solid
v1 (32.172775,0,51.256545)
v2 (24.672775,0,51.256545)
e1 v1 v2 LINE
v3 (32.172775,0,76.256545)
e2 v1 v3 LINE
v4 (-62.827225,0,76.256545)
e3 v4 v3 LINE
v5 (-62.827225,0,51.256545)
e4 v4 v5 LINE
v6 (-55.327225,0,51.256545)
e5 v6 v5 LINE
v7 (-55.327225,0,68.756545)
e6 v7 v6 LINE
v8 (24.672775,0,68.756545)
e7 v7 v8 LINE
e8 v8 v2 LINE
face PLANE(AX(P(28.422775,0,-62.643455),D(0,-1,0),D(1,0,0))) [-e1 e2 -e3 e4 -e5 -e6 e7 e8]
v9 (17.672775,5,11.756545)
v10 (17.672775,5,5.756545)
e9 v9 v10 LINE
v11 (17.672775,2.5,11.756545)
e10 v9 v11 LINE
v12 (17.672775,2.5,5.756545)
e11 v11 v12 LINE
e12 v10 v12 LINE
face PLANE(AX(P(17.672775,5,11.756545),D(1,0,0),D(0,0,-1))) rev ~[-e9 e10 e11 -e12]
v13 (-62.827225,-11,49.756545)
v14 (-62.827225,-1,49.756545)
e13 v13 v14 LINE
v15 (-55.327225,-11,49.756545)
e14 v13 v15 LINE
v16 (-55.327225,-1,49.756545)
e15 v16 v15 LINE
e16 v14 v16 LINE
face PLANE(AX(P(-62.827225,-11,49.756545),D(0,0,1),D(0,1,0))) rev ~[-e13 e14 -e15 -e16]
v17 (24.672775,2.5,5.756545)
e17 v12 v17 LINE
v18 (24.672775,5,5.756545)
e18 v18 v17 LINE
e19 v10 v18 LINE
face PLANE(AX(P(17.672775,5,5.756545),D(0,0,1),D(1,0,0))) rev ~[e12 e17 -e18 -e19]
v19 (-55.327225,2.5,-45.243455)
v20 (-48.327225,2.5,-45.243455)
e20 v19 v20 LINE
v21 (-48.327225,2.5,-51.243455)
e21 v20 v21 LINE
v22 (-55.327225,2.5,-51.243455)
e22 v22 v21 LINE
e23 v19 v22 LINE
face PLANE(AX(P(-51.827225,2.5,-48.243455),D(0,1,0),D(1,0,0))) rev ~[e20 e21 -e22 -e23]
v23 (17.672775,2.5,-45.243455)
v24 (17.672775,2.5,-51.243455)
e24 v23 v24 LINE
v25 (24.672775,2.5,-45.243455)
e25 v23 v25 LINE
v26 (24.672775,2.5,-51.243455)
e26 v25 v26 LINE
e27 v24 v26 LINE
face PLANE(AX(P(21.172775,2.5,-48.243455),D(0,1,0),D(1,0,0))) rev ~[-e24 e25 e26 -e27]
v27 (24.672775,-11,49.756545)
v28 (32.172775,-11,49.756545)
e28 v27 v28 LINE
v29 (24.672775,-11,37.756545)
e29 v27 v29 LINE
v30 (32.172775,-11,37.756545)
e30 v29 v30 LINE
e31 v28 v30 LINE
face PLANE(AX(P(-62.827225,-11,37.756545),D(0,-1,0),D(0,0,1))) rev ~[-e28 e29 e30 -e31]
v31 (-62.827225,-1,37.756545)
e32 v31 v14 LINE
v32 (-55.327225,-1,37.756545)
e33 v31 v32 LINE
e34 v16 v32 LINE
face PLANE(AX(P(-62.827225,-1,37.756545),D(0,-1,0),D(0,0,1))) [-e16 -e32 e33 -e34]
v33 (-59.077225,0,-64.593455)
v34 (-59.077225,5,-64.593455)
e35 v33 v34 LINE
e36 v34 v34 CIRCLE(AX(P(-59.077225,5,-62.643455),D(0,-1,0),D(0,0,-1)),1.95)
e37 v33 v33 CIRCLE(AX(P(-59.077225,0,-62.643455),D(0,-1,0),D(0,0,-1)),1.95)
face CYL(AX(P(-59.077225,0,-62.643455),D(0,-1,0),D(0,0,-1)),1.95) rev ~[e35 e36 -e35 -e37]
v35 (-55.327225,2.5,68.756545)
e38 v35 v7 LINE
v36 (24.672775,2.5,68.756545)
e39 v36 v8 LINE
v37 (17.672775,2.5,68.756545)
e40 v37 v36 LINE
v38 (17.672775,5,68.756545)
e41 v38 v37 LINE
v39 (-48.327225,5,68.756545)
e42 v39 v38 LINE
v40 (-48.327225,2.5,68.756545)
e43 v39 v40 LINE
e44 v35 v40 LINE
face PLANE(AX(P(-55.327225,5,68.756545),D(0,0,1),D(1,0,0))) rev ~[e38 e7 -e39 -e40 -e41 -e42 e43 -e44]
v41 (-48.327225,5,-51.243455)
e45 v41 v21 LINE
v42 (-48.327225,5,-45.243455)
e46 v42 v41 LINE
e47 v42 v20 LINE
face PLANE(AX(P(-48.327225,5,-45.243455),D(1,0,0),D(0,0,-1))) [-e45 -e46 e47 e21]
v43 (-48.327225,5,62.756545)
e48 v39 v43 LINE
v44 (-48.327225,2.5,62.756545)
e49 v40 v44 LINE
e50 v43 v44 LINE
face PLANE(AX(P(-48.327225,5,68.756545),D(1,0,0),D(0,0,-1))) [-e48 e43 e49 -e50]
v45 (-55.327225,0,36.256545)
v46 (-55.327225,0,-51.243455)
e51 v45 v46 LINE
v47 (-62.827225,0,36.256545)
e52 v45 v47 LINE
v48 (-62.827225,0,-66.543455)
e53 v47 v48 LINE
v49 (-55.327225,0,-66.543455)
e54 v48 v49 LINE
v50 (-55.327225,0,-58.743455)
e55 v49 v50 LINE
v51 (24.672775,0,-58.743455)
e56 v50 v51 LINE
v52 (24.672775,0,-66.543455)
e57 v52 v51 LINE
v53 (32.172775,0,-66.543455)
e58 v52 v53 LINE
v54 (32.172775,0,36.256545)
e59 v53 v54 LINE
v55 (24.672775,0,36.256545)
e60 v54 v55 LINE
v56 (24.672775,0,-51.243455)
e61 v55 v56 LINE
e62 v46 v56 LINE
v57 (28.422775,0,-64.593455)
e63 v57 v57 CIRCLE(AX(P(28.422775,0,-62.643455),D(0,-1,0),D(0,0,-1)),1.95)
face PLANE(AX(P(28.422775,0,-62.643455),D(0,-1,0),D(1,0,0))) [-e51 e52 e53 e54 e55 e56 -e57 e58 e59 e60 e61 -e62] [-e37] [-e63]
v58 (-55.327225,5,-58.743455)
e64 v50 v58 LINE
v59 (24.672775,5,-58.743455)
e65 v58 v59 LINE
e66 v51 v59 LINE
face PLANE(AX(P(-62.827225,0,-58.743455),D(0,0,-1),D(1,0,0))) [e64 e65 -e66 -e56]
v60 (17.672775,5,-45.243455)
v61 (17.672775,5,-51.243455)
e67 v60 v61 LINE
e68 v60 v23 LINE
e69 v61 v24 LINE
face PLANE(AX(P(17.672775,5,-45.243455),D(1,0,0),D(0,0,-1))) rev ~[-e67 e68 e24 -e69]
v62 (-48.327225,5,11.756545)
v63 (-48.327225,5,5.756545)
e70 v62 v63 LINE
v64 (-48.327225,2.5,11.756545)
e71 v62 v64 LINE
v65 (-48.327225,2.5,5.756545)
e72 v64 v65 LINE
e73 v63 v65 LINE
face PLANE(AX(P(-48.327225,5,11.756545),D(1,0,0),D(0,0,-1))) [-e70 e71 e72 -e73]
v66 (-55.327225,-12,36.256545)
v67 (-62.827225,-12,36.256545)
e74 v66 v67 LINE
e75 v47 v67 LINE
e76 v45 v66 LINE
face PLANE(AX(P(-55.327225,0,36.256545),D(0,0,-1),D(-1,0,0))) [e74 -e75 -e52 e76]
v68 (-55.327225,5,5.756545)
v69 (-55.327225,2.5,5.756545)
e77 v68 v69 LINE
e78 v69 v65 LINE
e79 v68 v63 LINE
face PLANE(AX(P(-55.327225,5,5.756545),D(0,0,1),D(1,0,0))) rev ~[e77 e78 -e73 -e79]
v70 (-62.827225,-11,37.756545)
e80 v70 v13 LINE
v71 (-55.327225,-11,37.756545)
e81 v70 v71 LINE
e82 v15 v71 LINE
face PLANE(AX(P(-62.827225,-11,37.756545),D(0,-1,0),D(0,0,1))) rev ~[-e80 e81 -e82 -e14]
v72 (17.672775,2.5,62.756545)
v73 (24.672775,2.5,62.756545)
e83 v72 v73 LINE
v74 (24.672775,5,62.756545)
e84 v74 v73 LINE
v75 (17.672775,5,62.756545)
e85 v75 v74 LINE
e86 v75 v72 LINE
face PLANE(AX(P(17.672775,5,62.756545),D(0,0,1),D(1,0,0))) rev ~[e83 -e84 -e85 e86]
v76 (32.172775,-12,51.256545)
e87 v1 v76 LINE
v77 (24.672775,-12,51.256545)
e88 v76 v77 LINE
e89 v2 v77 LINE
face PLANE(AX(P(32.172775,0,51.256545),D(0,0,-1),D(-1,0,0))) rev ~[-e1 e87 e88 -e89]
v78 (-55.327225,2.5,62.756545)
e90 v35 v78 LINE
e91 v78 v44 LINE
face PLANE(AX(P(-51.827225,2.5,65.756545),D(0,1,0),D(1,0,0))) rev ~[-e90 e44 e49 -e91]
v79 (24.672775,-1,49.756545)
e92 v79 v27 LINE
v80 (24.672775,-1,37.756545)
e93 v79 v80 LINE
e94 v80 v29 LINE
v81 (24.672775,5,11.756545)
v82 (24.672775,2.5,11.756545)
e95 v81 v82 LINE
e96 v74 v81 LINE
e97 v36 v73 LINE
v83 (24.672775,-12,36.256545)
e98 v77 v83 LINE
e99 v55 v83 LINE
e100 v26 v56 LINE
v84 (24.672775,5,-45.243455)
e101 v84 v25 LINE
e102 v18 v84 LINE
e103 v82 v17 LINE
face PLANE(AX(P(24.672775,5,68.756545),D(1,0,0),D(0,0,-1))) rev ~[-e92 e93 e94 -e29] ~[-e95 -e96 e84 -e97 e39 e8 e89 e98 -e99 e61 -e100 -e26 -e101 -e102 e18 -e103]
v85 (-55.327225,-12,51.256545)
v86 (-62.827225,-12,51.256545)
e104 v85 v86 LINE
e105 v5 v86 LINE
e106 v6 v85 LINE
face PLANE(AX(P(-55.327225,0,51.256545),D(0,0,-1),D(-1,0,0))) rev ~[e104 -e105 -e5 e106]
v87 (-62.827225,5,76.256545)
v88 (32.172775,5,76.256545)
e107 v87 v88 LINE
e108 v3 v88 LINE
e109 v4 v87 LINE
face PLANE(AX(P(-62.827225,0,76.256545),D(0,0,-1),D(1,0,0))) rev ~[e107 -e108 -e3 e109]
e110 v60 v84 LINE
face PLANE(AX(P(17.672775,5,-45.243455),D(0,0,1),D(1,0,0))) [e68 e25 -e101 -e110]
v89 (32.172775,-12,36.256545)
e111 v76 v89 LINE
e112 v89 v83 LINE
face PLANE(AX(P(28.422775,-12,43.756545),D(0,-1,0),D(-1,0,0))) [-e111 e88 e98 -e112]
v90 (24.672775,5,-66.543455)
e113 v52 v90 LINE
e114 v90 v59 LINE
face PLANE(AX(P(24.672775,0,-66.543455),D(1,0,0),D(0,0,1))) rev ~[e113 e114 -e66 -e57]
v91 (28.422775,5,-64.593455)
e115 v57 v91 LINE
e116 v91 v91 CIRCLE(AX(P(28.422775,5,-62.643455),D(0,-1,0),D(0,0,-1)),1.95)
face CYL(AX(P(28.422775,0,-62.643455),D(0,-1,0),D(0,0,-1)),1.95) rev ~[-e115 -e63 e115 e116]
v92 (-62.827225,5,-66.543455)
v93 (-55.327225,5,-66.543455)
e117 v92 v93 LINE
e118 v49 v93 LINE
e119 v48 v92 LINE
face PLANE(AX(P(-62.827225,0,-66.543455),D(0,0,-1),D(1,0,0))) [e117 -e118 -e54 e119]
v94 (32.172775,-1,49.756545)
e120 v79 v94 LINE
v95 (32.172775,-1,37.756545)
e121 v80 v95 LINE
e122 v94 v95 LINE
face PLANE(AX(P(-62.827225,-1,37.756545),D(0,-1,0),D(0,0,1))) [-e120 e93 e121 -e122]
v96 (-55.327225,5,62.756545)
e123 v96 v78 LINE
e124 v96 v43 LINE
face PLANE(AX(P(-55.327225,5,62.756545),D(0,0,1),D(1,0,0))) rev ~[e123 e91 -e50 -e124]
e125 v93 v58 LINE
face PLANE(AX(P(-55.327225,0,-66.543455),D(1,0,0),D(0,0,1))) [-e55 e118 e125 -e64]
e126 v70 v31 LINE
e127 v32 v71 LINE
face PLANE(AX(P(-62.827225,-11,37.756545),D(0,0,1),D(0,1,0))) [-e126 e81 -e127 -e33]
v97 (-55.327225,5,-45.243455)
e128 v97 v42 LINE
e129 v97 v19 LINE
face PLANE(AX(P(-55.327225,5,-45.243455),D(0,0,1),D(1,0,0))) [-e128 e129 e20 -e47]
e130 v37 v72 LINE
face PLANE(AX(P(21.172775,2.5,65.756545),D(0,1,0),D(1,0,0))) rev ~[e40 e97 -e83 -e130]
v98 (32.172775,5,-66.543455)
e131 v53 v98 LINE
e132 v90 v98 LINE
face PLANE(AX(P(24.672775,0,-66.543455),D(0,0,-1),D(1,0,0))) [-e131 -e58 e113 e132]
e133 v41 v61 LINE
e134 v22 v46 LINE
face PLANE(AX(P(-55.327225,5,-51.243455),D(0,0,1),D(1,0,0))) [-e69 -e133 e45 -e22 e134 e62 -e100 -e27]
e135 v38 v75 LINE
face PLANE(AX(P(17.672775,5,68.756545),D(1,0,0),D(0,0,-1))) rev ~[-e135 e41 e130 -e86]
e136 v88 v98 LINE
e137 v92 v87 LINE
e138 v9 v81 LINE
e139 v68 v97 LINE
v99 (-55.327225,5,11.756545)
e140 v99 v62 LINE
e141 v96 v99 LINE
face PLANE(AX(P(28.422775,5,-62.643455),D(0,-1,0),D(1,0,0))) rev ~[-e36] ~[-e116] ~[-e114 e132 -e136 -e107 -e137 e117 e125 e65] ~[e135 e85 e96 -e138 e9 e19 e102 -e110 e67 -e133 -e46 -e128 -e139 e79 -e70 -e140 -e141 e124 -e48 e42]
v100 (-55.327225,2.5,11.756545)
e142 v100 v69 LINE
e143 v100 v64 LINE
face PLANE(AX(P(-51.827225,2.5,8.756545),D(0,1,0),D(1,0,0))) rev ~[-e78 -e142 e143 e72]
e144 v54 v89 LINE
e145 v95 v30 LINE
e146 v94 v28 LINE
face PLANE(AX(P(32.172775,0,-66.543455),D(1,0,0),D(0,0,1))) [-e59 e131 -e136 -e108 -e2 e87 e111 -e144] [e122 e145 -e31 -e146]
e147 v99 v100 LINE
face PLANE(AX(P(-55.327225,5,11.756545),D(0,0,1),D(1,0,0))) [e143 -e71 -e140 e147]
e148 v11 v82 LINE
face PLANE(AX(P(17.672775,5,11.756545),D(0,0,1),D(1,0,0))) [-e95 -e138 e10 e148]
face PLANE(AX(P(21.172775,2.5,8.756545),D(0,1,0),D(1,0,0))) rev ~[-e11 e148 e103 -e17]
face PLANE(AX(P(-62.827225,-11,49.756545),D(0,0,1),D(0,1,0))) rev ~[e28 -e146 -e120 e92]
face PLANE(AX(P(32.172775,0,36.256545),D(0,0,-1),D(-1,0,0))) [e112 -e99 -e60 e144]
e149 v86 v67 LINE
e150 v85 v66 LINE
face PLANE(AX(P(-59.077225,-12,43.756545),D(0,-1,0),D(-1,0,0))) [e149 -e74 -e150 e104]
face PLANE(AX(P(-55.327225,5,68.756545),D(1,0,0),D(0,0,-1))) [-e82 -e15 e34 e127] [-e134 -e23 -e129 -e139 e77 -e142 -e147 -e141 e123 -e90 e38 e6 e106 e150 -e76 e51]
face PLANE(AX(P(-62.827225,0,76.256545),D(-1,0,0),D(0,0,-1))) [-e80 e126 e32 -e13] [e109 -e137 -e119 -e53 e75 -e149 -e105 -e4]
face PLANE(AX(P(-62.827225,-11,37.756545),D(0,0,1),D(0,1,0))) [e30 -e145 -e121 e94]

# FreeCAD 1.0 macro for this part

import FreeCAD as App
import Part
import Sketcher

V = App.Vector
Q = App.Units.Quantity


def add_polygon(sketch, points):
    """Adds a closed chain of lines whose ends are joined by coincident constraints."""
    first, n = sketch.GeometryCount, len(points)
    for a, b in zip(points, points[1:] + points[:1]):
        sketch.addGeometry(Part.LineSegment(App.Vector(*a, 0), App.Vector(*b, 0)), False)
    for i in range(n):
        sketch.addConstraint(Sketcher.Constraint("Coincident", first + i, 2, first + (i + 1) % n, 1))

doc = App.newDocument("Part")
params = doc.addObject("Spreadsheet::Sheet", "Params")
for row, (alias, value) in enumerate([
    ("sketch1_width", "95 mm"),
    ("sketch1_height", "135 mm"),
    ("pad1_length", "5 mm"),
    ("sketch2_width", "80 mm"),
    ("sketch2_height", "120 mm"),
    ("sketch3_width", "7 mm"),
    ("sketch3_height", "6 mm"),
    ("pad2_length", "2.5 mm"),
    ("sketch4_width", "7.5 mm"),
    ("sketch4_height", "7.8 mm"),
    ("pad3_length", "5 mm"),
    ("sketch5_diameter", "3.9 mm"),
    ("pocket2_length", "10 mm"),
    ("sketch6_height", "15 mm"),
    ("sketch6_width", "7.5 mm"),
    ("pad4_length", "12 mm"),
    ("sketch7_width", "10 mm"),
    ("sketch7_height", "12 mm"),
    ("pocket3_length", "1002 mm"),
], start=1):
    params.set(f"A{row}", alias)
    params.set(f"B{row}", "=" + value)
    params.setAlias(f"B{row}", alias)

body = doc.addObject("PartDesign::Body", "Body")

# Sketch on XZ plane
sketch1 = doc.addObject("Sketcher::SketchObject", "Sketch")
body.addObject(sketch1)
sketch1.AttachmentSupport = (doc.XZ_Plane, [""])
sketch1.MapMode = "FlatFace"
add_polygon(sketch1, [(-63, -59), (-63, 76), (32, 76), (32, -59)])  # lines 0-3
sketch1.addConstraint([
    Sketcher.Constraint("Vertical", 0),
    Sketcher.Constraint("Horizontal", 1),
    Sketcher.Constraint("Vertical", 2),
    Sketcher.Constraint("Horizontal", 3),
    Sketcher.Constraint("DistanceX", 1, 1, 1, 2, Q("95 mm")),
    Sketcher.Constraint("DistanceY", 0, 1, 0, 2, Q("135 mm")),
    Sketcher.Constraint("DistanceX", 0, 2, -1, 1, Q("62.827225 mm")),
    Sketcher.Constraint("DistanceY", -1, 1, 0, 2, Q("76.256545 mm")),
])
sketch1.setExpression("Constraints[8]", "Params.sketch1_width")
sketch1.setExpression("Constraints[9]", "Params.sketch1_height")
pad1 = doc.addObject("PartDesign::Pad", "Pad")
body.addObject(pad1)
pad1.Profile = sketch1
pad1.setExpression("Length", "Params.pad1_length")
pad1.Reversed = True

# Sketch on XZ plane
sketch2 = doc.addObject("Sketcher::SketchObject", "Sketch001")
body.addObject(sketch2)
sketch2.AttachmentSupport = (doc.XZ_Plane, [""])
sketch2.MapMode = "FlatFace"
sketch2.AttachmentOffset = App.Placement(V(0, 0, -5), App.Rotation())
add_polygon(sketch2, [(-55, -51), (-55, 69), (25, 69), (25, -51)])  # lines 0-3
sketch2.addConstraint([
    Sketcher.Constraint("Vertical", 0),
    Sketcher.Constraint("Horizontal", 1),
    Sketcher.Constraint("Vertical", 2),
    Sketcher.Constraint("Horizontal", 3),
    Sketcher.Constraint("DistanceX", 1, 1, 1, 2, Q("80 mm")),
    Sketcher.Constraint("DistanceY", 0, 1, 0, 2, Q("120 mm")),
    Sketcher.Constraint("DistanceX", 0, 2, -1, 1, Q("55.327225 mm")),
    Sketcher.Constraint("DistanceY", -1, 1, 0, 2, Q("68.756545 mm")),
])
sketch2.setExpression("Constraints[8]", "Params.sketch2_width")
sketch2.setExpression("Constraints[9]", "Params.sketch2_height")
pocket1 = doc.addObject("PartDesign::Pocket", "Pocket")
body.addObject(pocket1)
pocket1.Profile = sketch2
pocket1.Type = "ThroughAll"
pocket1.Reversed = True

# Sketch on XZ plane
sketch3 = doc.addObject("Sketcher::SketchObject", "Sketch002")
body.addObject(sketch3)
sketch3.AttachmentSupport = (doc.XZ_Plane, [""])
sketch3.MapMode = "FlatFace"
sketch3.AttachmentOffset = App.Placement(V(0, 0, -5), App.Rotation())
add_polygon(sketch3, [(-55, -51), (-55, -45), (-48, -45), (-48, -51)])  # lines 0-3
add_polygon(sketch3, [(18, 63), (18, 69), (25, 69), (25, 63)])  # lines 4-7
add_polygon(sketch3, [(18, -51), (18, -45), (25, -45), (25, -51)])  # lines 8-11
add_polygon(sketch3, [(-55, 63), (-55, 69), (-48, 69), (-48, 63)])  # lines 12-15
add_polygon(sketch3, [(-55, 6), (-55, 12), (-48, 12), (-48, 6)])  # lines 16-19
add_polygon(sketch3, [(18, 6), (18, 12), (25, 12), (25, 6)])  # lines 20-23
sketch3.addConstraint([
    Sketcher.Constraint("Vertical", 0),
    Sketcher.Constraint("Horizontal", 1),
    Sketcher.Constraint("Vertical", 2),
    Sketcher.Constraint("Horizontal", 3),
    Sketcher.Constraint("Vertical", 4),
    Sketcher.Constraint("Horizontal", 5),
    Sketcher.Constraint("Vertical", 6),
    Sketcher.Constraint("Horizontal", 7),
    Sketcher.Constraint("Vertical", 8),
    Sketcher.Constraint("Horizontal", 9),
    Sketcher.Constraint("Vertical", 10),
    Sketcher.Constraint("Horizontal", 11),
    Sketcher.Constraint("Vertical", 12),
    Sketcher.Constraint("Horizontal", 13),
    Sketcher.Constraint("Vertical", 14),
    Sketcher.Constraint("Horizontal", 15),
    Sketcher.Constraint("Vertical", 16),
    Sketcher.Constraint("Horizontal", 17),
    Sketcher.Constraint("Vertical", 18),
    Sketcher.Constraint("Horizontal", 19),
    Sketcher.Constraint("Vertical", 20),
    Sketcher.Constraint("Horizontal", 21),
    Sketcher.Constraint("Vertical", 22),
    Sketcher.Constraint("Horizontal", 23),
    Sketcher.Constraint("Horizontal", 1, 2, 8, 2),
    Sketcher.Constraint("Horizontal", 3, 2, 10, 2),
    Sketcher.Constraint("Horizontal", 5, 2, 12, 2),
    Sketcher.Constraint("Horizontal", 7, 2, 14, 2),
    Sketcher.Constraint("Horizontal", 17, 2, 20, 2),
    Sketcher.Constraint("Horizontal", 19, 2, 22, 2),
    Sketcher.Constraint("Vertical", 7, 2, 8, 2),
    Sketcher.Constraint("Vertical", 6, 2, 9, 2),
    Sketcher.Constraint("Vertical", 3, 2, 12, 2),
    Sketcher.Constraint("Vertical", 2, 2, 13, 2),
    Sketcher.Constraint("Vertical", 15, 2, 16, 2),
    Sketcher.Constraint("Vertical", 14, 2, 17, 2),
    Sketcher.Constraint("Vertical", 11, 2, 20, 2),
    Sketcher.Constraint("Vertical", 10, 2, 21, 2),
    Sketcher.Constraint("Equal", 3, 5),
    Sketcher.Constraint("Equal", 2, 4),
    Sketcher.Constraint("Equal", 14, 16),
    Sketcher.Constraint("DistanceX", 1, 1, 1, 2, Q("7 mm")),
    Sketcher.Constraint("DistanceY", 0, 1, 0, 2, Q("6 mm")),
    Sketcher.Constraint("DistanceX", 1, 2, 4, 2, Q("66 mm")),
    Sketcher.Constraint("DistanceY", 1, 2, 4, 2, Q("114 mm")),
    Sketcher.Constraint("DistanceY", 16, 2, 15, 2, Q("51 mm")),
    Sketcher.Constraint("DistanceX", 0, 2, -1, 1, Q("55.327225 mm")),
    Sketcher.Constraint("DistanceY", 0, 2, -1, 1, Q("45.243455 mm")),
])
sketch3.setExpression("Constraints[65]", "Params.sketch3_width")
sketch3.setExpression("Constraints[66]", "Params.sketch3_height")
pad2 = doc.addObject("PartDesign::Pad", "Pad001")
body.addObject(pad2)
pad2.Profile = sketch3
pad2.setExpression("Length", "Params.pad2_length")

# Sketch on XZ plane
sketch4 = doc.addObject("Sketcher::SketchObject", "Sketch003")
body.addObject(sketch4)
sketch4.AttachmentSupport = (doc.XZ_Plane, [""])
sketch4.MapMode = "FlatFace"
add_polygon(sketch4, [(25, -59), (25, -67), (32, -67), (32, -59)])  # lines 0-3
add_polygon(sketch4, [(-63, -59), (-63, -67), (-55, -67), (-55, -59)])  # lines 4-7
sketch4.addConstraint([
    Sketcher.Constraint("Vertical", 0),
    Sketcher.Constraint("Horizontal", 1),
    Sketcher.Constraint("Vertical", 2),
    Sketcher.Constraint("Horizontal", 3),
    Sketcher.Constraint("Vertical", 4),
    Sketcher.Constraint("Horizontal", 5),
    Sketcher.Constraint("Vertical", 6),
    Sketcher.Constraint("Horizontal", 7),
    Sketcher.Constraint("Horizontal", 1, 2, 4, 2),
    Sketcher.Constraint("Horizontal", 3, 2, 6, 2),
    Sketcher.Constraint("Equal", 3, 5),
    Sketcher.Constraint("DistanceX", 1, 1, 1, 2, Q("7.5 mm")),
    Sketcher.Constraint("DistanceY", 0, 2, 0, 1, Q("7.8 mm")),
    Sketcher.Constraint("DistanceX", 4, 2, 1, 2, Q("95 mm")),
    Sketcher.Constraint("DistanceX", -1, 1, 0, 2, Q("24.672775 mm")),
    Sketcher.Constraint("DistanceY", 0, 2, -1, 1, Q("66.543455 mm")),
])
sketch4.setExpression("Constraints[19]", "Params.sketch4_width")
sketch4.setExpression("Constraints[20]", "Params.sketch4_height")
pad3 = doc.addObject("PartDesign::Pad", "Pad002")
body.addObject(pad3)
pad3.Profile = sketch4
pad3.setExpression("Length", "Params.pad3_length")
pad3.Reversed = True

# Sketch on XZ plane
sketch5 = doc.addObject("Sketcher::SketchObject", "Sketch004")
body.addObject(sketch5)
sketch5.AttachmentSupport = (doc.XZ_Plane, [""])
sketch5.MapMode = "FlatFace"
sketch5.addGeometry([
    Part.Circle(V(-59.1, -62.6, 0), V(0, 0, 1), 1.9),
    Part.Circle(V(28.4, -62.6, 0), V(0, 0, 1), 1.9),
], False)
sketch5.addConstraint([
    Sketcher.Constraint("Equal", 0, 1),
    Sketcher.Constraint("Horizontal", 0, 3, 1, 3),
    Sketcher.Constraint("Diameter", 0, Q("3.9 mm")),
    Sketcher.Constraint("DistanceX", 0, 3, 1, 3, Q("87.5 mm")),
    Sketcher.Constraint("DistanceX", 0, 3, -1, 1, Q("59.077225 mm")),
    Sketcher.Constraint("DistanceY", 0, 3, -1, 1, Q("62.643455 mm")),
])
sketch5.setExpression("Constraints[2]", "Params.sketch5_diameter")
pocket2 = doc.addObject("PartDesign::Pocket", "Pocket001")
body.addObject(pocket2)
pocket2.Profile = sketch5
pocket2.setExpression("Length", "Params.pocket2_length")

# Sketch on XZ plane
sketch6 = doc.addObject("Sketcher::SketchObject", "Sketch005")
body.addObject(sketch6)
sketch6.AttachmentSupport = (doc.XZ_Plane, [""])
sketch6.MapMode = "FlatFace"
add_polygon(sketch6, [(-55, 36), (-55, 51), (-63, 51), (-63, 36)])  # lines 0-3
add_polygon(sketch6, [(32, 36), (32, 51), (25, 51), (25, 36)])  # lines 4-7
sketch6.addConstraint([
    Sketcher.Constraint("Vertical", 0),
    Sketcher.Constraint("Horizontal", 1),
    Sketcher.Constraint("Vertical", 2),
    Sketcher.Constraint("Horizontal", 3),
    Sketcher.Constraint("Vertical", 4),
    Sketcher.Constraint("Horizontal", 5),
    Sketcher.Constraint("Vertical", 6),
    Sketcher.Constraint("Horizontal", 7),
    Sketcher.Constraint("Horizontal", 1, 2, 4, 2),
    Sketcher.Constraint("Horizontal", 3, 2, 6, 2),
    Sketcher.Constraint("Equal", 3, 5),
    Sketcher.Constraint("DistanceY", 0, 1, 0, 2, Q("15 mm")),
    Sketcher.Constraint("DistanceX", 1, 2, 1, 1, Q("7.5 mm")),
    Sketcher.Constraint("DistanceX", 1, 2, 4, 2, Q("95 mm")),
    Sketcher.Constraint("DistanceX", 0, 2, -1, 1, Q("55.327225 mm")),
    Sketcher.Constraint("DistanceY", -1, 1, 0, 2, Q("51.256545 mm")),
])
sketch6.setExpression("Constraints[19]", "Params.sketch6_height")
sketch6.setExpression("Constraints[20]", "Params.sketch6_width")
pad4 = doc.addObject("PartDesign::Pad", "Pad003")
body.addObject(pad4)
pad4.Profile = sketch6
pad4.setExpression("Length", "Params.pad4_length")

# Sketch on YZ plane
sketch7 = doc.addObject("Sketcher::SketchObject", "Sketch006")
body.addObject(sketch7)
sketch7.AttachmentSupport = (doc.YZ_Plane, [""])
sketch7.MapMode = "FlatFace"
sketch7.AttachmentOffset = App.Placement(V(0, 0, -62.827225), App.Rotation())
add_polygon(sketch7, [(-1, 38), (-11, 38), (-11, 50), (-1, 50)])  # lines 0-3
sketch7.addConstraint([
    Sketcher.Constraint("Horizontal", 0),
    Sketcher.Constraint("Vertical", 1),
    Sketcher.Constraint("Horizontal", 2),
    Sketcher.Constraint("Vertical", 3),
    Sketcher.Constraint("DistanceX", 0, 2, 0, 1, Q("10 mm")),
    Sketcher.Constraint("DistanceY", 1, 1, 1, 2, Q("12 mm")),
    Sketcher.Constraint("DistanceX", 0, 2, -1, 1, Q("11 mm")),
    Sketcher.Constraint("DistanceY", -1, 1, 0, 2, Q("37.756545 mm")),
])
sketch7.setExpression("Constraints[8]", "Params.sketch7_width")
sketch7.setExpression("Constraints[9]", "Params.sketch7_height")
pocket3 = doc.addObject("PartDesign::Pocket", "Pocket002")
body.addObject(pocket3)
pocket3.Profile = sketch7
pocket3.setExpression("Length", "Params.pocket3_length")
pocket3.Reversed = True

doc.recompute()
